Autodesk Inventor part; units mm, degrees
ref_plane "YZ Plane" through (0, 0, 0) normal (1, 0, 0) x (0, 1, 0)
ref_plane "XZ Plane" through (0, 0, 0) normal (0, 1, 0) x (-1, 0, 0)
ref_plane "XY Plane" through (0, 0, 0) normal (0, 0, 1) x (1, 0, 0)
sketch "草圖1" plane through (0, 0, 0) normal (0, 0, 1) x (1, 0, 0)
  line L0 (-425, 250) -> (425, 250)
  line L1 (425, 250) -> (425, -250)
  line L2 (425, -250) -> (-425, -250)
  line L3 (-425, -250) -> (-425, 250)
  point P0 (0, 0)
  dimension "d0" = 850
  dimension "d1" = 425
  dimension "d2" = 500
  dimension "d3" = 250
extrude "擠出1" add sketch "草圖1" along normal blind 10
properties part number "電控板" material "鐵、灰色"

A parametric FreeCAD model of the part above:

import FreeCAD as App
import Part
import Sketcher
from FreeCAD import Vector
Q = App.Units.Quantity


def add_polygon(sketch, points):
    """Adds a closed chain of lines whose ends are joined by coincident constraints."""
    first, n = sketch.GeometryCount, len(points)
    for a, b in zip(points, points[1:] + points[:1]):
        sketch.addGeometry(Part.LineSegment(App.Vector(*a, 0), App.Vector(*b, 0)), False)
    for i in range(n):
        sketch.addConstraint(Sketcher.Constraint("Coincident", first + i, 2, first + (i + 1) % n, 1))

doc = App.newDocument("Part")
body = doc.addObject("PartDesign::Body", "Body")

# Sketch on XY plane
sketch1 = body.newObject("Sketcher::SketchObject", "Sketch")
sketch1.AttachmentSupport = (doc.getObject("XY_Plane"), [""])
sketch1.MapMode = "FlatFace"
add_polygon(sketch1, [(425, 250), (-425, 250), (-425, -250), (425, -250)])  # lines 0-3
sketch1.addConstraint(Sketcher.Constraint("Horizontal", 0))
sketch1.addConstraint(Sketcher.Constraint("Vertical", 1))
sketch1.addConstraint(Sketcher.Constraint("Horizontal", 2))
sketch1.addConstraint(Sketcher.Constraint("Vertical", 3))
sketch1.addConstraint(Sketcher.Constraint("Symmetric", 0, 2, 2, 2, -1, 1))
sketch1.addConstraint(Sketcher.Constraint("DistanceX", 0, 2, 0, 1, Q("850 mm")))
sketch1.addConstraint(Sketcher.Constraint("DistanceY", 1, 2, 1, 1, Q("500 mm")))
pad1 = body.newObject("PartDesign::Pad", "Pad")
pad1.Profile = sketch1
pad1.Length = 10

doc.recompute()
